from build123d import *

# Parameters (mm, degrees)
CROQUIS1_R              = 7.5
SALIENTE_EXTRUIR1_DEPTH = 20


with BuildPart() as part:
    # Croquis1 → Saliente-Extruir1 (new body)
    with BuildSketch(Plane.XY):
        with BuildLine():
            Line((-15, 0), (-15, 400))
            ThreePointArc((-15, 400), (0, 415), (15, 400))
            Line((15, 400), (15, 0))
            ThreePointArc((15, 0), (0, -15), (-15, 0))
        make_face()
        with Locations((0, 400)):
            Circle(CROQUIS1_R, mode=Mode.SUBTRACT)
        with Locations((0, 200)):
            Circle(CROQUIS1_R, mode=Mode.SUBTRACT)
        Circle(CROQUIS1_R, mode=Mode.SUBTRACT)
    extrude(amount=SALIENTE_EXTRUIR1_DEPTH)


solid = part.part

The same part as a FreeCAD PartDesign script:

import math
import FreeCAD as App
import Part
import Sketcher

V = App.Vector
Q = App.Units.Quantity

doc = App.newDocument("Part")
body = doc.addObject("PartDesign::Body", "Body")

sketch1 = body.newObject("Sketcher::SketchObject", "Sketch")
sketch1.AttachmentSupport = (doc.getObject("XY_Plane"), [""])
sketch1.MapMode = "FlatFace"
sketch1.addGeometry(Part.LineSegment(V(-15, 400, 0), V(-15, 0, 0)), False)
sketch1.addGeometry(Part.ArcOfCircle(Part.Circle(V(0, 0, 0), V(0, 0, 1), 15), math.radians(180), math.radians(360)), False)
sketch1.addGeometry(Part.LineSegment(V(15, 0, 0), V(15, 400, 0)), False)
sketch1.addGeometry(Part.ArcOfCircle(Part.Circle(V(0, 400, 0), V(0, 0, 1), 15), math.radians(0), math.radians(180)), False)
sketch1.addGeometry(Part.Circle(V(0, 0, 0), V(0, 0, 1), 8), False)
sketch1.addGeometry(Part.Circle(V(0, 200, 0), V(0, 0, 1), 8), False)
sketch1.addGeometry(Part.Circle(V(0, 400, 0), V(0, 0, 1), 8), False)
sketch1.addConstraint(Sketcher.Constraint("Tangent", 0, 2, 1, 1))
sketch1.addConstraint(Sketcher.Constraint("Tangent", 1, 2, 2, 1))
sketch1.addConstraint(Sketcher.Constraint("Tangent", 2, 2, 3, 1))
sketch1.addConstraint(Sketcher.Constraint("Tangent", 3, 2, 0, 1))
sketch1.addConstraint(Sketcher.Constraint("Vertical", 0))
sketch1.addConstraint(Sketcher.Constraint("Vertical", 2))
sketch1.addConstraint(Sketcher.Constraint("Coincident", 1, 3, -1, 1))
sketch1.addConstraint(Sketcher.Constraint("Coincident", 4, 3, -1, 1))
sketch1.addConstraint(Sketcher.Constraint("Coincident", 6, 3, 3, 3))
sketch1.addConstraint(Sketcher.Constraint("Equal", 4, 5))
sketch1.addConstraint(Sketcher.Constraint("Equal", 5, 6))
sketch1.addConstraint(Sketcher.Constraint("PointOnObject", 5, 3, -2))
sketch1.addConstraint(Sketcher.Constraint("Diameter", 4, Q("15 mm")))
sketch1.addConstraint(Sketcher.Constraint("Radius", 1, Q("15 mm")))
sketch1.addConstraint(Sketcher.Constraint("DistanceY", 0, 2, 0, 1, Q("400 mm")))
sketch1.addConstraint(Sketcher.Constraint("DistanceY", -1, 1, 5, 3, Q("200 mm")))
pad1 = body.newObject("PartDesign::Pad", "Pad")
pad1.Profile = sketch1
pad1.Length = 20

doc.recompute()
